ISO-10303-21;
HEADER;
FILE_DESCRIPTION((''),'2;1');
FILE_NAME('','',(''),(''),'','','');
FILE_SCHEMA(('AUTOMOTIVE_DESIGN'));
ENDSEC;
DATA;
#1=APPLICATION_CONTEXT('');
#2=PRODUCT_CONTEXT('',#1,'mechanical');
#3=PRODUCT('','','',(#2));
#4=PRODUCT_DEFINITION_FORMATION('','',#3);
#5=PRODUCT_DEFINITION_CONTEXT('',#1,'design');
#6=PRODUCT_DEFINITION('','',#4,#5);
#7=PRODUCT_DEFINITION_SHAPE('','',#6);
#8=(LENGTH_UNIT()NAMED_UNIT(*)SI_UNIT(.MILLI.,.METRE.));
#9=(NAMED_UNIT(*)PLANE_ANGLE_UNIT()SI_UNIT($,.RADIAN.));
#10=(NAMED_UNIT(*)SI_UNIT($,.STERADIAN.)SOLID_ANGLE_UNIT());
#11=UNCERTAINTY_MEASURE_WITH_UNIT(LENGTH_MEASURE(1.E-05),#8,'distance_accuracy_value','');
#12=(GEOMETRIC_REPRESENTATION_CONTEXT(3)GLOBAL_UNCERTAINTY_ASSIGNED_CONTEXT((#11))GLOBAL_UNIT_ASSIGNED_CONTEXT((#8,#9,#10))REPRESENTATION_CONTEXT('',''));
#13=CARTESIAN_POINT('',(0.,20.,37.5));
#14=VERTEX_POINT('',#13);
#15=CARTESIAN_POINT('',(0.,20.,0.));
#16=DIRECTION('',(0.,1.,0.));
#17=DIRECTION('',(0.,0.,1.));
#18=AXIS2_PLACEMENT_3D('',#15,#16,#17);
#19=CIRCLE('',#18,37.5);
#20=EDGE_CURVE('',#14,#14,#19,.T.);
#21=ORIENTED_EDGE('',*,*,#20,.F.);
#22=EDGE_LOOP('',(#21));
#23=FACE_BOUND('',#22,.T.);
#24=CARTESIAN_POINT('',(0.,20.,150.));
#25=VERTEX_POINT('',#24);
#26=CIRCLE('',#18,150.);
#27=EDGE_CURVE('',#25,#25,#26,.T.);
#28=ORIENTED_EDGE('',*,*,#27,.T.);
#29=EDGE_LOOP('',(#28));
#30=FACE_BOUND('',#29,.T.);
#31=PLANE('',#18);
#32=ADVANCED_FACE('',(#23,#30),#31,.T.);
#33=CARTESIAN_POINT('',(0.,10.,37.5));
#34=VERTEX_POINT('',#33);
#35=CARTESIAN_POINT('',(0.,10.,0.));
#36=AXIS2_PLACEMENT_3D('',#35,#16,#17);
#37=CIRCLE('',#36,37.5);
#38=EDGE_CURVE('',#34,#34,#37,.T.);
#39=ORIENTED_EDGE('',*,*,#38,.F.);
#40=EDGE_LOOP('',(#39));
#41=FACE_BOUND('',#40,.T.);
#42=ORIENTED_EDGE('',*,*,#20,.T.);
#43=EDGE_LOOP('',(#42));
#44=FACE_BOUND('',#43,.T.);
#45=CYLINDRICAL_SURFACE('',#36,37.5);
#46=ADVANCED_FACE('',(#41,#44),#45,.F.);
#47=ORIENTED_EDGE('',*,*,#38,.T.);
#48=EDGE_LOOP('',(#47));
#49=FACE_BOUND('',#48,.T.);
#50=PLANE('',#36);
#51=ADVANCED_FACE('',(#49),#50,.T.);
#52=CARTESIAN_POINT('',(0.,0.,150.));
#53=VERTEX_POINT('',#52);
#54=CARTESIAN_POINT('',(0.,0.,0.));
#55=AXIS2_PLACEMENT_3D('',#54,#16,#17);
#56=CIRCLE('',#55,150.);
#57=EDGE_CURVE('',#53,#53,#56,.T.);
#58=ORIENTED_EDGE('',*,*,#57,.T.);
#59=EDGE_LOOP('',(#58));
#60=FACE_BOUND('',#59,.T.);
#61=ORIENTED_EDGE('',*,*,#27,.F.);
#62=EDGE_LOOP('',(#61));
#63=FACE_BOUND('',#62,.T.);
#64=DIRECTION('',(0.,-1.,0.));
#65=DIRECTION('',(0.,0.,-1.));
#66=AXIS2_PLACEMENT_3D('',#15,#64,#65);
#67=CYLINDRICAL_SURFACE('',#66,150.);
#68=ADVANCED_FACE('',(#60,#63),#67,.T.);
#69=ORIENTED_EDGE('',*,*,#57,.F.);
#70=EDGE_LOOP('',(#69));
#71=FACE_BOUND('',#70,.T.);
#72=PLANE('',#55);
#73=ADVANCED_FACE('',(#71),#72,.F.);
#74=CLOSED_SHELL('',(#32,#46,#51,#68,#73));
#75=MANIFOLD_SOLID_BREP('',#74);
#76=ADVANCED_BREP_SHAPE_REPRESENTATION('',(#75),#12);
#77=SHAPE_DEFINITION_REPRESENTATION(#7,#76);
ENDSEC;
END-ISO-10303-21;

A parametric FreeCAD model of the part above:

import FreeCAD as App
import Part
import Sketcher

V = App.Vector

doc = App.newDocument("Part")
body = doc.addObject("PartDesign::Body", "Body")

sketch1 = body.newObject("Sketcher::SketchObject", "Sketch")
sketch1.AttachmentSupport = (doc.getObject("XZ_Plane"), [""])
sketch1.MapMode = "FlatFace"
sketch1.addGeometry(Part.Circle(V(0, 0, 0), V(0, 0, 1), 150), False)
sketch1.addConstraint(Sketcher.Constraint("Coincident", 0, 3, -1, 1))
sketch1.addConstraint(Sketcher.Constraint("Diameter", 0, 300.0))
pad1 = body.newObject("PartDesign::Pad", "Pad")
pad1.Profile = sketch1
pad1.Length = 20
pad1.Reversed = True

sketch2 = body.newObject("Sketcher::SketchObject", "Sketch001")
sketch2.AttachmentSupport = (doc.getObject("XZ_Plane"), [""])
sketch2.MapMode = "FlatFace"
sketch2.AttachmentOffset = App.Placement(V(0, 0, -20), App.Rotation())
sketch2.addGeometry(Part.Circle(V(0, 0, 0), V(0, 0, 1), 38), False)
sketch2.addConstraint(Sketcher.Constraint("Coincident", 0, 3, -1, 1))
sketch2.addConstraint(Sketcher.Constraint("Diameter", 0, 75.0))
pocket1 = body.newObject("PartDesign::Pocket", "Pocket")
pocket1.Profile = sketch2
pocket1.Length = 10
pocket1.Reversed = True

doc.recompute()
